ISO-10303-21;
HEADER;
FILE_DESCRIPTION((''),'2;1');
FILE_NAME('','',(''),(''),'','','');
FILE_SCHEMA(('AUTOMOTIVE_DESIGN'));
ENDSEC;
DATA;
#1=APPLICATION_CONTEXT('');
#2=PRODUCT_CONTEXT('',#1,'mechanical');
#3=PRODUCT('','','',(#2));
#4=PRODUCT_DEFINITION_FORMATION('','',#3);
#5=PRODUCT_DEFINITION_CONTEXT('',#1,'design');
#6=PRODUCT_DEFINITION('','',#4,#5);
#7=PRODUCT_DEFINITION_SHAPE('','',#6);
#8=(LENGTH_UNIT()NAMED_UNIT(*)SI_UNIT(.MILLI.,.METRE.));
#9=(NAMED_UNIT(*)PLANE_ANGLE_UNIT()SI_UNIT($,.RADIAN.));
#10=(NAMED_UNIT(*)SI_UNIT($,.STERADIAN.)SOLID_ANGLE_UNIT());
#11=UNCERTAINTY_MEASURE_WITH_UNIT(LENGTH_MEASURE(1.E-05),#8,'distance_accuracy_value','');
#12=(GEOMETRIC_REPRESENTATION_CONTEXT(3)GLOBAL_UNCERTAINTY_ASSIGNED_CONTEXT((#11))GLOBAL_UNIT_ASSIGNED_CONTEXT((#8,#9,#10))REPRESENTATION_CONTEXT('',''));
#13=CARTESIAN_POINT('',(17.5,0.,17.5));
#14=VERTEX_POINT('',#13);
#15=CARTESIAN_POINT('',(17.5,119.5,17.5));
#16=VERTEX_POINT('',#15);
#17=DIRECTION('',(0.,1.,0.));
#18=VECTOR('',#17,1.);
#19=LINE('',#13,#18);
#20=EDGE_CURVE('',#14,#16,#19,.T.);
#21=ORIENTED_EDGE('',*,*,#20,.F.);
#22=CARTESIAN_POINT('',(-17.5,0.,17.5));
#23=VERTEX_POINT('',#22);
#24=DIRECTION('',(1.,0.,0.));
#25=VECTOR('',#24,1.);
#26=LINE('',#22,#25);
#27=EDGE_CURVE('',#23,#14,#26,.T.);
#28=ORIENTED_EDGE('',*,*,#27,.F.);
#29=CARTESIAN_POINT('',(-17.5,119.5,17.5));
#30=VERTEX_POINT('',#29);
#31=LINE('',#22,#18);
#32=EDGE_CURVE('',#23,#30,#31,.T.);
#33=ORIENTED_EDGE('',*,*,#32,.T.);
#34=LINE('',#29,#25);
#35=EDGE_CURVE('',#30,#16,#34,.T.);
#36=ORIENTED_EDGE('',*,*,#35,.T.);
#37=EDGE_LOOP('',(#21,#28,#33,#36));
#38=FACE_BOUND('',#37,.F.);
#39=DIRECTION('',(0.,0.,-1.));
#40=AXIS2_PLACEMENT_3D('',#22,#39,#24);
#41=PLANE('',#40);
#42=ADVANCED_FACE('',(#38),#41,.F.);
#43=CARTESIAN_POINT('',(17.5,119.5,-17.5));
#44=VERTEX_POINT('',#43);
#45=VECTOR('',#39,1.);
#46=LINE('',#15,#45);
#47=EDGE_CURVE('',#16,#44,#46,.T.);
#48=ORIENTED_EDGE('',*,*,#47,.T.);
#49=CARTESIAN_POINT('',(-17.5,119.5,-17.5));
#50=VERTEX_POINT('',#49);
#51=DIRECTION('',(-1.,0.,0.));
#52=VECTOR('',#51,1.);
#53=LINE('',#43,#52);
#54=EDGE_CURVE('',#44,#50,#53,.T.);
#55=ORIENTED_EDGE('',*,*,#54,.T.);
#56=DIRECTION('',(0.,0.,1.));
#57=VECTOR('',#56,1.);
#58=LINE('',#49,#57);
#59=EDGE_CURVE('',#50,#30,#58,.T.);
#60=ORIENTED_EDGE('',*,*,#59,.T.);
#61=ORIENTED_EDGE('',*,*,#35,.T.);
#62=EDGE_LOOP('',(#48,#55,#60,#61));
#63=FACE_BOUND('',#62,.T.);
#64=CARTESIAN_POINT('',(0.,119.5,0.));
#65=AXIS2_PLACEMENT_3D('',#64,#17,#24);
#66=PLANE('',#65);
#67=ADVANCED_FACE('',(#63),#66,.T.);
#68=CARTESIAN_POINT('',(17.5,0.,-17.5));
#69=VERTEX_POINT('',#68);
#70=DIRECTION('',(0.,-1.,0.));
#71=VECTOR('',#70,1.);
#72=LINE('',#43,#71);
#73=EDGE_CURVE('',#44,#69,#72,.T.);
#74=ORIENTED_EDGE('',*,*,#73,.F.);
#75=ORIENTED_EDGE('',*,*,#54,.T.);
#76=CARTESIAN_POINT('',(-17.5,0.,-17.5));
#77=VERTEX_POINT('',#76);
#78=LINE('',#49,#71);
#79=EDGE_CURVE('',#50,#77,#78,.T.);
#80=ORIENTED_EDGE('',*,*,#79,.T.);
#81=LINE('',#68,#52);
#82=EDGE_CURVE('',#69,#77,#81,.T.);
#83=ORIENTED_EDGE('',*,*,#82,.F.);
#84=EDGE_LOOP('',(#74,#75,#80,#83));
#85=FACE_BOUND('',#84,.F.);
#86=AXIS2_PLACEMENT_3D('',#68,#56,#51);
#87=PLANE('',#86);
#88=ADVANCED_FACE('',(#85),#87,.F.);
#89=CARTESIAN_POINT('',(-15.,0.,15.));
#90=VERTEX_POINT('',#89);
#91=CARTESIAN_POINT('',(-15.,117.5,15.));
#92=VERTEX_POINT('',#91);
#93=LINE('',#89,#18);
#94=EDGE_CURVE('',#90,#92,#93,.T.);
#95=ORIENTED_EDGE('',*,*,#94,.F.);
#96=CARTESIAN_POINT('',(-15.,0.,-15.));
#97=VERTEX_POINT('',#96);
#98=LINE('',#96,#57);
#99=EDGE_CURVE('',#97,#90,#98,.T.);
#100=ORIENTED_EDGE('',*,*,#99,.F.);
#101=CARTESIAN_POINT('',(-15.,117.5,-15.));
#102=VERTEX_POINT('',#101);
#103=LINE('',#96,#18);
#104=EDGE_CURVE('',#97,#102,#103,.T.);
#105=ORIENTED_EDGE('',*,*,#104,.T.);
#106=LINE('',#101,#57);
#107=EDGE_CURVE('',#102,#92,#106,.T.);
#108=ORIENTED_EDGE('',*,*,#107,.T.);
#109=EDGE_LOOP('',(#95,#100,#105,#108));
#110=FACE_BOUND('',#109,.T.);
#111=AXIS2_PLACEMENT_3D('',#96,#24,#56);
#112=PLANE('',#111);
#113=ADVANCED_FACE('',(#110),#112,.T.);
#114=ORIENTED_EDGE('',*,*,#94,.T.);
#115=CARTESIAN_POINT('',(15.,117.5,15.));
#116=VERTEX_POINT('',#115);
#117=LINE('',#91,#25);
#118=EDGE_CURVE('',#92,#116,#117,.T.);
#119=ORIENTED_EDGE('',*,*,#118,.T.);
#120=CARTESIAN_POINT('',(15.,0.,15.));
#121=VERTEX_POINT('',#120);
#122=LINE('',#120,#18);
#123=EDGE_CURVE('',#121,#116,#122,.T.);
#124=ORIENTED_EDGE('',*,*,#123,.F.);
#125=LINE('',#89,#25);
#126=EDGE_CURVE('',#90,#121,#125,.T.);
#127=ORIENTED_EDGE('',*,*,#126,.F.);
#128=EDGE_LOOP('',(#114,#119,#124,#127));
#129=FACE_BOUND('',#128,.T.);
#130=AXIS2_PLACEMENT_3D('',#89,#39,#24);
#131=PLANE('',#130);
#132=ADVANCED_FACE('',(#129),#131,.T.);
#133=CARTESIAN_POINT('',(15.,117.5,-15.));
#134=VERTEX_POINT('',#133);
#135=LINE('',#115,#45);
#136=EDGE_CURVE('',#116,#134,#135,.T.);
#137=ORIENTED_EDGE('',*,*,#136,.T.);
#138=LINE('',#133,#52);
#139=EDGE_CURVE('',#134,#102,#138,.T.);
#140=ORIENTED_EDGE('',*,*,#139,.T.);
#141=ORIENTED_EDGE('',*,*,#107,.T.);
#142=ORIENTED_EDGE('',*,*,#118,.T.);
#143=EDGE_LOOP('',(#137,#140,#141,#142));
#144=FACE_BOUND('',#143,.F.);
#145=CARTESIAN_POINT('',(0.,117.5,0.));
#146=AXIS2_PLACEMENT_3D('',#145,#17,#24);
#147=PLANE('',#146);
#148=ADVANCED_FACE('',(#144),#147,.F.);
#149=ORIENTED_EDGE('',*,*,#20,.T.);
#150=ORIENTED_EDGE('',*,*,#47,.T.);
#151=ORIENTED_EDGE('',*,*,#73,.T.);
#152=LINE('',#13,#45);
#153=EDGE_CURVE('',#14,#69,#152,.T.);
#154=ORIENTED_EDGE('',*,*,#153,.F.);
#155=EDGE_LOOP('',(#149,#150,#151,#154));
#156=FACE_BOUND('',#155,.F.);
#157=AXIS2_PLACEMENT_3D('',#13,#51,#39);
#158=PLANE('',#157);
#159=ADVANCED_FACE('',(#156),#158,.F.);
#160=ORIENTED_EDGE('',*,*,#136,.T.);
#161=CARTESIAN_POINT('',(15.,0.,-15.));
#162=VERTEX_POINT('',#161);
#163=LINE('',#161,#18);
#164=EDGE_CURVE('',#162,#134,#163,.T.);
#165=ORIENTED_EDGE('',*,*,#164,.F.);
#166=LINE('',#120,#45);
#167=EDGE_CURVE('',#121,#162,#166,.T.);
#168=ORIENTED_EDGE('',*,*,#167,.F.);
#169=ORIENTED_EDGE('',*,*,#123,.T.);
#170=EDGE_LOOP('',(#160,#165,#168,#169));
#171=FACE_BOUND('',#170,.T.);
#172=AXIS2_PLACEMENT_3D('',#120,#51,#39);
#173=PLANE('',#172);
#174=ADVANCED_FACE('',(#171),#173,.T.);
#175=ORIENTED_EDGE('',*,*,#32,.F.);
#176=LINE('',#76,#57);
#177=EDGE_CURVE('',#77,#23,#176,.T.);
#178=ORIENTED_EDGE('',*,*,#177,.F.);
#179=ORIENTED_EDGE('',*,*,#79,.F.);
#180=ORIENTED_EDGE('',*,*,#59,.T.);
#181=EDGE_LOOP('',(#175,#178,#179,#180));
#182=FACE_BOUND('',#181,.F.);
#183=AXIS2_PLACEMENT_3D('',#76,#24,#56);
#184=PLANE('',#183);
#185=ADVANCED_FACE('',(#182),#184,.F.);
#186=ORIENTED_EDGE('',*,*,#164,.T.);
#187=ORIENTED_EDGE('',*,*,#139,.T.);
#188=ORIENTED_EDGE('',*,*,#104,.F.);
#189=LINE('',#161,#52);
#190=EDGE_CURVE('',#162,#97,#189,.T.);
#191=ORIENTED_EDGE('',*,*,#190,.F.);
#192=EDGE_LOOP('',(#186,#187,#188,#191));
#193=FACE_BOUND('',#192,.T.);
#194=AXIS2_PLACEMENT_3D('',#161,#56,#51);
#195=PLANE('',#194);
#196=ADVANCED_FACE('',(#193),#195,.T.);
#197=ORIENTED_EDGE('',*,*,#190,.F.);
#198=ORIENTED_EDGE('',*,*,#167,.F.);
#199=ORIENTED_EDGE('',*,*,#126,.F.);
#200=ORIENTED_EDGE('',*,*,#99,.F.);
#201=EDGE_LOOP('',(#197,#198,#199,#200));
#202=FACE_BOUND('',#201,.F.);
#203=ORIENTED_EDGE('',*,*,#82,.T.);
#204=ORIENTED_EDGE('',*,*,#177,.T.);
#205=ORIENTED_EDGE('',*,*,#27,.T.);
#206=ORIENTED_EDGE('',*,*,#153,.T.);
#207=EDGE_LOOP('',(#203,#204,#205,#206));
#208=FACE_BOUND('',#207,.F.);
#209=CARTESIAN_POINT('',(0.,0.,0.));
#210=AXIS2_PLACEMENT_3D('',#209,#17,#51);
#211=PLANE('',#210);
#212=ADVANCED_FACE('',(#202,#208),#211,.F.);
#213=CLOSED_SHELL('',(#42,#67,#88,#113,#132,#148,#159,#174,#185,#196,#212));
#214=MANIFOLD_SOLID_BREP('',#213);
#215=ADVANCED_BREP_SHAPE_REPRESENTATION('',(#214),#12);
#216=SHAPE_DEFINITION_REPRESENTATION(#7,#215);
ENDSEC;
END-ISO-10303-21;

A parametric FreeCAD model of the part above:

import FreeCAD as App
import Part
import Sketcher
Q = App.Units.Quantity

doc = App.newDocument("Part")
params = doc.addObject("Spreadsheet::Sheet", "Params")
for row, (alias, value) in enumerate([
    ("sketch1_width", "35 mm"),
    ("sketch1_width2", "30 mm"),
    ("pad1_length", "117.5 mm"),
    ("sketch2_width", "35 mm"),
    ("pad2_length", "2 mm"),
], start=1):
    params.set(f"A{row}", alias)
    params.set(f"B{row}", "=" + value)
    params.setAlias(f"B{row}", alias)

body = doc.addObject("PartDesign::Body", "Body")

# Sketch on XZ plane
sketch1 = body.newObject("Sketcher::SketchObject", "Sketch")
sketch1.AttachmentSupport = (doc.getObject("XZ_Plane"), [""])
sketch1.MapMode = "FlatFace"
sketch1.addGeometry([
    Part.LineSegment(App.Vector(-18, -18, 0), App.Vector(-18, 18, 0)),  # 0
    Part.LineSegment(App.Vector(-18, 18, 0), App.Vector(18, 18, 0)),  # 1
    Part.LineSegment(App.Vector(18, 18, 0), App.Vector(18, -18, 0)),  # 2
    Part.LineSegment(App.Vector(18, -18, 0), App.Vector(-18, -18, 0)),  # 3
    Part.LineSegment(App.Vector(15, 15, 0), App.Vector(-15, 15, 0)),  # 4
    Part.LineSegment(App.Vector(-15, 15, 0), App.Vector(-15, -15, 0)),  # 5
    Part.LineSegment(App.Vector(-15, -15, 0), App.Vector(15, -15, 0)),  # 6
    Part.LineSegment(App.Vector(15, -15, 0), App.Vector(15, 15, 0)),  # 7
], False)
sketch1.addConstraint([
    Sketcher.Constraint("Coincident", 0, 2, 1, 1),
    Sketcher.Constraint("Coincident", 1, 2, 2, 1),
    Sketcher.Constraint("Coincident", 2, 2, 3, 1),
    Sketcher.Constraint("Coincident", 3, 2, 0, 1),
    Sketcher.Constraint("Coincident", 4, 2, 5, 1),
    Sketcher.Constraint("Coincident", 5, 2, 6, 1),
    Sketcher.Constraint("Coincident", 6, 2, 7, 1),
    Sketcher.Constraint("Coincident", 7, 2, 4, 1),
    Sketcher.Constraint("Vertical", 0),
    Sketcher.Constraint("Horizontal", 1),
    Sketcher.Constraint("Vertical", 2),
    Sketcher.Constraint("Horizontal", 3),
    Sketcher.Constraint("Horizontal", 4),
    Sketcher.Constraint("Vertical", 5),
    Sketcher.Constraint("Horizontal", 6),
    Sketcher.Constraint("Vertical", 7),
    Sketcher.Constraint("Symmetric", 0, 2, 2, 2, -1, 1),
    Sketcher.Constraint("Symmetric", 4, 2, 6, 2, -1, 1),
    Sketcher.Constraint("Equal", 3, 0),
    Sketcher.Constraint("Equal", 6, 5),
    Sketcher.Constraint("DistanceX", 1, 1, 1, 2, Q("35 mm")),
    Sketcher.Constraint("DistanceX", 4, 2, 4, 1, Q("30 mm")),
])
sketch1.setExpression("Constraints[20]", "Params.sketch1_width")
sketch1.setExpression("Constraints[21]", "Params.sketch1_width2")
pad1 = body.newObject("PartDesign::Pad", "Pad")
pad1.Profile = sketch1
pad1.setExpression("Length", "Params.pad1_length")
pad1.Reversed = True

# Sketch on XZ plane
sketch2 = body.newObject("Sketcher::SketchObject", "Sketch001")
sketch2.AttachmentSupport = (doc.getObject("XZ_Plane"), [""])
sketch2.MapMode = "FlatFace"
sketch2.AttachmentOffset = App.Placement(App.Vector(0, 0, -117.5), App.Rotation())
sketch2.addGeometry([
    Part.LineSegment(App.Vector(18, -18, 0), App.Vector(-18, -18, 0)),
    Part.LineSegment(App.Vector(-18, -18, 0), App.Vector(-18, 18, 0)),
    Part.LineSegment(App.Vector(-18, 18, 0), App.Vector(18, 18, 0)),
    Part.LineSegment(App.Vector(18, 18, 0), App.Vector(18, -18, 0)),
], False)
sketch2.addConstraint([
    Sketcher.Constraint("Coincident", 0, 2, 1, 1),
    Sketcher.Constraint("Coincident", 1, 2, 2, 1),
    Sketcher.Constraint("Coincident", 2, 2, 3, 1),
    Sketcher.Constraint("Coincident", 3, 2, 0, 1),
    Sketcher.Constraint("Horizontal", 0),
    Sketcher.Constraint("Vertical", 1),
    Sketcher.Constraint("Horizontal", 2),
    Sketcher.Constraint("Vertical", 3),
    Sketcher.Constraint("Symmetric", 0, 2, 2, 2, -1, 1),
    Sketcher.Constraint("Equal", 2, 1),
    Sketcher.Constraint("DistanceX", 0, 2, 0, 1, Q("35 mm")),
])
sketch2.setExpression("Constraints[10]", "Params.sketch2_width")
pad2 = body.newObject("PartDesign::Pad", "Pad001")
pad2.Profile = sketch2
pad2.setExpression("Length", "Params.pad2_length")
pad2.Reversed = True

doc.recompute()
